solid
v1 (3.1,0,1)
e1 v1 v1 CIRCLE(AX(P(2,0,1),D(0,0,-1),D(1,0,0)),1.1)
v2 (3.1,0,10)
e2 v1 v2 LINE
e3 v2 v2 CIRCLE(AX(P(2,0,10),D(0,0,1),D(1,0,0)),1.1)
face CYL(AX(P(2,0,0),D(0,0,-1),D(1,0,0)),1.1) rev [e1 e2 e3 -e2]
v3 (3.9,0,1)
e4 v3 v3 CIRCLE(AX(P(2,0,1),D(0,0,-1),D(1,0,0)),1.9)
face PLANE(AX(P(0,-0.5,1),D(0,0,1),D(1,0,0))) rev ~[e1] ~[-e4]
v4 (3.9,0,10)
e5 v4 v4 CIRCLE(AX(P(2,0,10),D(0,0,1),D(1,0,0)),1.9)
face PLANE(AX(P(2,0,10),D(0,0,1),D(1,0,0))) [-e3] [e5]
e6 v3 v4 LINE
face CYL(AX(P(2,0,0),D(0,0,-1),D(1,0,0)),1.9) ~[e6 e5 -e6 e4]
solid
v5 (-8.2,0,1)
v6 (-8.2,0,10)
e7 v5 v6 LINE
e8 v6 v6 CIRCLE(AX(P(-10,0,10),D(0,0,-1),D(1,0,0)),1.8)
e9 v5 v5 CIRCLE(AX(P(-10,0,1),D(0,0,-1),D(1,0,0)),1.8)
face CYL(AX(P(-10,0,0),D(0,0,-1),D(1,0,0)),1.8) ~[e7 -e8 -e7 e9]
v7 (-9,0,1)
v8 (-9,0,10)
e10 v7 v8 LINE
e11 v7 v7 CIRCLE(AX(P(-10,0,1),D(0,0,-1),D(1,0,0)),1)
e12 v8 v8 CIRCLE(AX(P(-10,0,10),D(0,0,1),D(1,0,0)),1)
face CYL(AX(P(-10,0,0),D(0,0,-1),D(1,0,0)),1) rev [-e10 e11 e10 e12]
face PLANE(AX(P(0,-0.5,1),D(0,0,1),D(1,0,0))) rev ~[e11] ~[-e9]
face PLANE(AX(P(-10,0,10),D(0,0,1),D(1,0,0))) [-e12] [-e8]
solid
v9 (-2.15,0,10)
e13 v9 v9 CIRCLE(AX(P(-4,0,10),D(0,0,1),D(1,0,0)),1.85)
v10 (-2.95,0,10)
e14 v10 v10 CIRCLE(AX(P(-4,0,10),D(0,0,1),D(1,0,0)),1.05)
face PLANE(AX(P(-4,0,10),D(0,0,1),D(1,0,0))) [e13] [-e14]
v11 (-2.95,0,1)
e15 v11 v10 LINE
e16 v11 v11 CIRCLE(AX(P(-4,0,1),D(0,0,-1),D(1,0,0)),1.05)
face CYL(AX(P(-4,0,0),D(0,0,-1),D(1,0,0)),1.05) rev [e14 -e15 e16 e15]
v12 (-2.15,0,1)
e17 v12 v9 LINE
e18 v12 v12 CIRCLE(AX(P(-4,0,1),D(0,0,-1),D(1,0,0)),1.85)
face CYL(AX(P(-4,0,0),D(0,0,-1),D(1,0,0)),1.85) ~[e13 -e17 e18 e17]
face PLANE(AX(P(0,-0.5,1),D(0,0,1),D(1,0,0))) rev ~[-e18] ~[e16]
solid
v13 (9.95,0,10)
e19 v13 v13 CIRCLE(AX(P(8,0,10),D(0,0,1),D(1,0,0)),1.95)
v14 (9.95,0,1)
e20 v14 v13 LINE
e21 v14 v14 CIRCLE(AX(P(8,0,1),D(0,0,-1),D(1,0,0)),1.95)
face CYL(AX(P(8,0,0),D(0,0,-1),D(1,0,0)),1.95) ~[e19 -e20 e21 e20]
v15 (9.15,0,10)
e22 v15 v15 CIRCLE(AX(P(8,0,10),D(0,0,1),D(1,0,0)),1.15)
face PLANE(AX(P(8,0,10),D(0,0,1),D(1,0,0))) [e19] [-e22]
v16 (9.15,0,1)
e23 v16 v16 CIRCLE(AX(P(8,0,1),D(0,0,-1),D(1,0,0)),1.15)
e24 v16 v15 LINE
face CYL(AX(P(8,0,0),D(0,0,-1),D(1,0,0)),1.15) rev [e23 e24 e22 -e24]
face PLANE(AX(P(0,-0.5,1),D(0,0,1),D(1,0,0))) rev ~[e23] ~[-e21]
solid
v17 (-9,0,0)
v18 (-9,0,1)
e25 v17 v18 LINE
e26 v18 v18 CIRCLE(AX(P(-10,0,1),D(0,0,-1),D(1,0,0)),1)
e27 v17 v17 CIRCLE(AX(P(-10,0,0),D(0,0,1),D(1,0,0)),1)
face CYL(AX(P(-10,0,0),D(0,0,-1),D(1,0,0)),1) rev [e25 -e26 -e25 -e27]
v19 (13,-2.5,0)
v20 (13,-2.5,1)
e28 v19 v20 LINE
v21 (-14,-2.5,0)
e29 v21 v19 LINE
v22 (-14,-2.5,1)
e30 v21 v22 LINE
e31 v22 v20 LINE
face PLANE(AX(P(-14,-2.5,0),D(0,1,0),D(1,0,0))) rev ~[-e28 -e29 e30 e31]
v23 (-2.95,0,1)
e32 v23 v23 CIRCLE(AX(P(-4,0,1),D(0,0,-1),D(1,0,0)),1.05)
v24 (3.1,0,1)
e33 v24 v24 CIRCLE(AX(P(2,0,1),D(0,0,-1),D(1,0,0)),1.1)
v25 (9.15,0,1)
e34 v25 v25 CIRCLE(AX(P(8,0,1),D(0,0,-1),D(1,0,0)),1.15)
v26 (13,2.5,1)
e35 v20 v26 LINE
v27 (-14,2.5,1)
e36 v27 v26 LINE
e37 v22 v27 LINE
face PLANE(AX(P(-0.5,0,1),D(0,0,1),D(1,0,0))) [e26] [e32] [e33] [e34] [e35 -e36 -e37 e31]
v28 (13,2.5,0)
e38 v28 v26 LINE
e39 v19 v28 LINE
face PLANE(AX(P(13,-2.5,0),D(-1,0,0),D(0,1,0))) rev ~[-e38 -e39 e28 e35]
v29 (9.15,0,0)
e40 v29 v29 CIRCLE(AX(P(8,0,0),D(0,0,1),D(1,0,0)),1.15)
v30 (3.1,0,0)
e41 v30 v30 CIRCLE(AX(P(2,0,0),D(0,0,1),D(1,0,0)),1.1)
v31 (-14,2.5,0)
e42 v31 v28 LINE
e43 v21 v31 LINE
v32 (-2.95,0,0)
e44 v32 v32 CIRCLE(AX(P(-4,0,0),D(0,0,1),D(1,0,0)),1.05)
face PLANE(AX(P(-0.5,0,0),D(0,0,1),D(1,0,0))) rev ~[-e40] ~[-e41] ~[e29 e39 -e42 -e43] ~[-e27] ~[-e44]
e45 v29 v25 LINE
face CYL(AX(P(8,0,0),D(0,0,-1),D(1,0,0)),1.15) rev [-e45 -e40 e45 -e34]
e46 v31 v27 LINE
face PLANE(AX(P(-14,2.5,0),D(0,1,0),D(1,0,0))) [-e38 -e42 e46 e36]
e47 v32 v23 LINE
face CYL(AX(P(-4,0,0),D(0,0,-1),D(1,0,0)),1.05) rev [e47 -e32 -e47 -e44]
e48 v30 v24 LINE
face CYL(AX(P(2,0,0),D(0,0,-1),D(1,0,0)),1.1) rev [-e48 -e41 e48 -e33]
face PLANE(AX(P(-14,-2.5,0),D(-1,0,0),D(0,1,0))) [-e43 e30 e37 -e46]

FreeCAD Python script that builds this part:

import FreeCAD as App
import Part
import Sketcher
from FreeCAD import Vector


def faces_at(feature, points):
    """Names of the faces that lie closest to the given points."""
    faces = feature.Shape.Faces
    near = lambda p: min(range(len(faces)), key=lambda i: faces[i].distToShape(Part.Vertex(*p))[0])
    return sorted({f"Face{near(p) + 1}" for p in points})


def add_polygon(sketch, points):
    """Adds a closed chain of lines whose ends are joined by coincident constraints."""
    first, n = sketch.GeometryCount, len(points)
    for a, b in zip(points, points[1:] + points[:1]):
        sketch.addGeometry(Part.LineSegment(App.Vector(*a, 0), App.Vector(*b, 0)), False)
    for i in range(n):
        sketch.addConstraint(Sketcher.Constraint("Coincident", first + i, 2, first + (i + 1) % n, 1))

doc = App.newDocument("Part")
params = doc.addObject("Spreadsheet::Sheet", "Params")
for row, (alias, value) in enumerate([
    ("sketch1_width", "30 mm"),
    ("sketch1_height", "5 mm"),
    ("pad1_length", "2 mm"),
    ("sketch2_diameter", "2 mm"),
    ("pad2_length", "10 mm"),
    ("thickness_wall", "0.8 mm"),
    ("sketch3_width", "30 mm"),
    ("sketch3_height", "5 mm"),
    ("pad3_length", "2 mm"),
    ("sketch4_diameter", "2.1 mm"),
    ("pad4_length", "10 mm"),
    ("thickness2_wall", "0.8 mm"),
    ("sketch5_width", "30 mm"),
    ("sketch5_height", "5 mm"),
    ("pad5_length", "2 mm"),
    ("sketch6_diameter", "2.2 mm"),
    ("pad6_length", "10 mm"),
    ("thickness3_wall", "0.8 mm"),
    ("sketch7_width", "30 mm"),
    ("sketch7_height", "5 mm"),
    ("pad7_length", "2 mm"),
    ("sketch8_diameter", "2.3 mm"),
    ("pad8_length", "10 mm"),
    ("thickness4_wall", "0.8 mm"),
    ("sketch9_diameter", "2.2 mm"),
    ("pad9_length", "10 mm"),
    ("sketch10_diameter", "2.3 mm"),
    ("pad10_length", "10 mm"),
    ("sketch11_diameter", "2.1 mm"),
    ("pad11_length", "10 mm"),
    ("sketch12_diameter", "2 mm"),
    ("pad12_length", "10 mm"),
    ("sketch13_width", "27 mm"),
    ("sketch13_height", "5 mm"),
    ("pad13_length", "1 mm"),
], start=1):
    params.set(f"A{row}", alias)
    params.set(f"B{row}", "=" + value)
    params.setAlias(f"B{row}", alias)

body = doc.addObject("PartDesign::Body", "Body")

# Sketch on XY plane
sketch1 = body.newObject("Sketcher::SketchObject", "Sketch")
sketch1.AttachmentSupport = (doc.getObject("XY_Plane"), [""])
sketch1.MapMode = "FlatFace"
sketch1.AttachmentOffset = App.Placement(Vector(0, 0, -1), App.Rotation())
add_polygon(sketch1, [(-15, 2), (-15, -3), (15, -3), (15, 2)])  # lines 0-3
sketch1.addConstraint(Sketcher.Constraint("Vertical", 0))
sketch1.addConstraint(Sketcher.Constraint("Horizontal", 1))
sketch1.addConstraint(Sketcher.Constraint("Vertical", 2))
sketch1.addConstraint(Sketcher.Constraint("Horizontal", 3))
sketch1.addConstraint(Sketcher.Constraint("DistanceX", 1, 1, 1, 2, 30.0))
sketch1.addConstraint(Sketcher.Constraint("DistanceY", 0, 2, 0, 1, 5.0))
sketch1.addConstraint(Sketcher.Constraint("DistanceX", 0, 2, -1, 1, 15.0))
sketch1.addConstraint(Sketcher.Constraint("DistanceY", 0, 2, -1, 1, 3.0))
sketch1.setExpression("Constraints[8]", "Params.sketch1_width")
sketch1.setExpression("Constraints[9]", "Params.sketch1_height")
pad1 = body.newObject("PartDesign::Pad", "Pad")
pad1.Profile = sketch1
pad1.setExpression("Length", "Params.pad1_length")
body2 = doc.addObject("PartDesign::Body", "Body001")

# Sketch on XY plane
sketch2 = body2.newObject("Sketcher::SketchObject", "Sketch001")
sketch2.AttachmentSupport = (doc.getObject("XY_Plane001"), [""])
sketch2.MapMode = "FlatFace"
sketch2.addGeometry(Part.Circle(Vector(-10, 0, 0), Vector(0, 0, 1), 1), False)
sketch2.addConstraint(Sketcher.Constraint("PointOnObject", 0, 3, -1))
sketch2.addConstraint(Sketcher.Constraint("Diameter", 0, 2.0))
sketch2.addConstraint(Sketcher.Constraint("DistanceX", 0, 3, -1, 1, 10.0))
sketch2.setExpression("Constraints[1]", "Params.sketch2_diameter")
pad2 = body2.newObject("PartDesign::Pad", "Pad001")
pad2.Profile = sketch2
pad2.setExpression("Length", "Params.pad2_length")
doc.recompute()

thickness = body2.newObject("PartDesign::Thickness", "Thickness")
thickness.Base = (pad2, faces_at(pad2, [(-10, 0, 10)]))
thickness.setExpression("Value", "Params.thickness_wall")
thickness.Reversed = False
thickness.Join = "Intersection"
doc.recompute()

boolean = body2.newObject("PartDesign::Boolean", "Boolean")
boolean.Type = "Cut"
boolean.addObjects([body])
body3 = doc.addObject("PartDesign::Body", "Body002")

# Sketch on XY plane
sketch3 = body3.newObject("Sketcher::SketchObject", "Sketch002")
sketch3.AttachmentSupport = (doc.getObject("XY_Plane002"), [""])
sketch3.MapMode = "FlatFace"
sketch3.AttachmentOffset = App.Placement(Vector(0, 0, -1), App.Rotation())
add_polygon(sketch3, [(-15, 2), (-15, -3), (15, -3), (15, 2)])  # lines 0-3
sketch3.addConstraint(Sketcher.Constraint("Vertical", 0))
sketch3.addConstraint(Sketcher.Constraint("Horizontal", 1))
sketch3.addConstraint(Sketcher.Constraint("Vertical", 2))
sketch3.addConstraint(Sketcher.Constraint("Horizontal", 3))
sketch3.addConstraint(Sketcher.Constraint("DistanceX", 1, 1, 1, 2, 30.0))
sketch3.addConstraint(Sketcher.Constraint("DistanceY", 0, 2, 0, 1, 5.0))
sketch3.addConstraint(Sketcher.Constraint("DistanceX", 0, 2, -1, 1, 15.0))
sketch3.addConstraint(Sketcher.Constraint("DistanceY", 0, 2, -1, 1, 3.0))
sketch3.setExpression("Constraints[8]", "Params.sketch3_width")
sketch3.setExpression("Constraints[9]", "Params.sketch3_height")
pad3 = body3.newObject("PartDesign::Pad", "Pad002")
pad3.Profile = sketch3
pad3.setExpression("Length", "Params.pad3_length")
body4 = doc.addObject("PartDesign::Body", "Body003")

# Sketch on XY plane
sketch4 = body4.newObject("Sketcher::SketchObject", "Sketch003")
sketch4.AttachmentSupport = (doc.getObject("XY_Plane003"), [""])
sketch4.MapMode = "FlatFace"
sketch4.addGeometry(Part.Circle(Vector(-4, 0, 0), Vector(0, 0, 1), 1.1), False)
sketch4.addConstraint(Sketcher.Constraint("PointOnObject", 0, 3, -1))
sketch4.addConstraint(Sketcher.Constraint("Diameter", 0, 2.1))
sketch4.addConstraint(Sketcher.Constraint("DistanceX", 0, 3, -1, 1, 4.0))
sketch4.setExpression("Constraints[1]", "Params.sketch4_diameter")
pad4 = body4.newObject("PartDesign::Pad", "Pad003")
pad4.Profile = sketch4
pad4.setExpression("Length", "Params.pad4_length")
doc.recompute()

thickness2 = body4.newObject("PartDesign::Thickness", "Thickness001")
thickness2.Base = (pad4, faces_at(pad4, [(-4, 0, 10)]))
thickness2.setExpression("Value", "Params.thickness2_wall")
thickness2.Reversed = False
thickness2.Join = "Arc"
doc.recompute()

boolean2 = body4.newObject("PartDesign::Boolean", "Boolean001")
boolean2.Type = "Cut"
boolean2.addObjects([body3])
body5 = doc.addObject("PartDesign::Body", "Body004")

# Sketch on XY plane
sketch5 = body5.newObject("Sketcher::SketchObject", "Sketch004")
sketch5.AttachmentSupport = (doc.getObject("XY_Plane004"), [""])
sketch5.MapMode = "FlatFace"
sketch5.AttachmentOffset = App.Placement(Vector(0, 0, -1), App.Rotation())
add_polygon(sketch5, [(-15, 2), (-15, -3), (15, -3), (15, 2)])  # lines 0-3
sketch5.addConstraint(Sketcher.Constraint("Vertical", 0))
sketch5.addConstraint(Sketcher.Constraint("Horizontal", 1))
sketch5.addConstraint(Sketcher.Constraint("Vertical", 2))
sketch5.addConstraint(Sketcher.Constraint("Horizontal", 3))
sketch5.addConstraint(Sketcher.Constraint("DistanceX", 1, 1, 1, 2, 30.0))
sketch5.addConstraint(Sketcher.Constraint("DistanceY", 0, 2, 0, 1, 5.0))
sketch5.addConstraint(Sketcher.Constraint("DistanceX", 0, 2, -1, 1, 15.0))
sketch5.addConstraint(Sketcher.Constraint("DistanceY", 0, 2, -1, 1, 3.0))
sketch5.setExpression("Constraints[8]", "Params.sketch5_width")
sketch5.setExpression("Constraints[9]", "Params.sketch5_height")
pad5 = body5.newObject("PartDesign::Pad", "Pad004")
pad5.Profile = sketch5
pad5.setExpression("Length", "Params.pad5_length")
body6 = doc.addObject("PartDesign::Body", "Body005")

# Sketch on XY plane
sketch6 = body6.newObject("Sketcher::SketchObject", "Sketch005")
sketch6.AttachmentSupport = (doc.getObject("XY_Plane005"), [""])
sketch6.MapMode = "FlatFace"
sketch6.addGeometry(Part.Circle(Vector(2, 0, 0), Vector(0, 0, 1), 1.1), False)
sketch6.addConstraint(Sketcher.Constraint("PointOnObject", 0, 3, -1))
sketch6.addConstraint(Sketcher.Constraint("Diameter", 0, 2.2))
sketch6.addConstraint(Sketcher.Constraint("DistanceX", -1, 1, 0, 3, 2.0))
sketch6.setExpression("Constraints[1]", "Params.sketch6_diameter")
pad6 = body6.newObject("PartDesign::Pad", "Pad005")
pad6.Profile = sketch6
pad6.setExpression("Length", "Params.pad6_length")
doc.recompute()

thickness3 = body6.newObject("PartDesign::Thickness", "Thickness002")
thickness3.Base = (pad6, faces_at(pad6, [(2, 0, 10)]))
thickness3.setExpression("Value", "Params.thickness3_wall")
thickness3.Reversed = False
thickness3.Join = "Arc"
doc.recompute()

boolean3 = body6.newObject("PartDesign::Boolean", "Boolean002")
boolean3.Type = "Cut"
boolean3.addObjects([body5])
body7 = doc.addObject("PartDesign::Body", "Body006")

# Sketch on XY plane
sketch7 = body7.newObject("Sketcher::SketchObject", "Sketch006")
sketch7.AttachmentSupport = (doc.getObject("XY_Plane006"), [""])
sketch7.MapMode = "FlatFace"
sketch7.AttachmentOffset = App.Placement(Vector(0, 0, -1), App.Rotation())
add_polygon(sketch7, [(-15, 2), (-15, -3), (15, -3), (15, 2)])  # lines 0-3
sketch7.addConstraint(Sketcher.Constraint("Vertical", 0))
sketch7.addConstraint(Sketcher.Constraint("Horizontal", 1))
sketch7.addConstraint(Sketcher.Constraint("Vertical", 2))
sketch7.addConstraint(Sketcher.Constraint("Horizontal", 3))
sketch7.addConstraint(Sketcher.Constraint("DistanceX", 1, 1, 1, 2, 30.0))
sketch7.addConstraint(Sketcher.Constraint("DistanceY", 0, 2, 0, 1, 5.0))
sketch7.addConstraint(Sketcher.Constraint("DistanceX", 0, 2, -1, 1, 15.0))
sketch7.addConstraint(Sketcher.Constraint("DistanceY", 0, 2, -1, 1, 3.0))
sketch7.setExpression("Constraints[8]", "Params.sketch7_width")
sketch7.setExpression("Constraints[9]", "Params.sketch7_height")
pad7 = body7.newObject("PartDesign::Pad", "Pad006")
pad7.Profile = sketch7
pad7.setExpression("Length", "Params.pad7_length")
body8 = doc.addObject("PartDesign::Body", "Body007")

# Sketch on XY plane
sketch8 = body8.newObject("Sketcher::SketchObject", "Sketch007")
sketch8.AttachmentSupport = (doc.getObject("XY_Plane007"), [""])
sketch8.MapMode = "FlatFace"
sketch8.addGeometry(Part.Circle(Vector(8, 0, 0), Vector(0, 0, 1), 1.1), False)
sketch8.addConstraint(Sketcher.Constraint("PointOnObject", 0, 3, -1))
sketch8.addConstraint(Sketcher.Constraint("Diameter", 0, 2.3))
sketch8.addConstraint(Sketcher.Constraint("DistanceX", -1, 1, 0, 3, 8.0))
sketch8.setExpression("Constraints[1]", "Params.sketch8_diameter")
pad8 = body8.newObject("PartDesign::Pad", "Pad007")
pad8.Profile = sketch8
pad8.setExpression("Length", "Params.pad8_length")
doc.recompute()

thickness4 = body8.newObject("PartDesign::Thickness", "Thickness003")
thickness4.Base = (pad8, faces_at(pad8, [(8, 0, 10)]))
thickness4.setExpression("Value", "Params.thickness4_wall")
thickness4.Reversed = False
thickness4.Join = "Arc"
doc.recompute()

boolean4 = body8.newObject("PartDesign::Boolean", "Boolean003")
boolean4.Type = "Cut"
boolean4.addObjects([body7])
body9 = doc.addObject("PartDesign::Body", "Body008")

# Sketch on XY plane
sketch9 = body9.newObject("Sketcher::SketchObject", "Sketch008")
sketch9.AttachmentSupport = (doc.getObject("XY_Plane008"), [""])
sketch9.MapMode = "FlatFace"
sketch9.addGeometry(Part.Circle(Vector(2, 0, 0), Vector(0, 0, 1), 1.1), False)
sketch9.addConstraint(Sketcher.Constraint("PointOnObject", 0, 3, -1))
sketch9.addConstraint(Sketcher.Constraint("Diameter", 0, 2.2))
sketch9.addConstraint(Sketcher.Constraint("DistanceX", -1, 1, 0, 3, 2.0))
sketch9.setExpression("Constraints[1]", "Params.sketch9_diameter")
pad9 = body9.newObject("PartDesign::Pad", "Pad008")
pad9.Profile = sketch9
pad9.setExpression("Length", "Params.pad9_length")
body10 = doc.addObject("PartDesign::Body", "Body009")

# Sketch on XY plane
sketch10 = body10.newObject("Sketcher::SketchObject", "Sketch009")
sketch10.AttachmentSupport = (doc.getObject("XY_Plane009"), [""])
sketch10.MapMode = "FlatFace"
sketch10.addGeometry(Part.Circle(Vector(8, 0, 0), Vector(0, 0, 1), 1.1), False)
sketch10.addConstraint(Sketcher.Constraint("PointOnObject", 0, 3, -1))
sketch10.addConstraint(Sketcher.Constraint("Diameter", 0, 2.3))
sketch10.addConstraint(Sketcher.Constraint("DistanceX", -1, 1, 0, 3, 8.0))
sketch10.setExpression("Constraints[1]", "Params.sketch10_diameter")
pad10 = body10.newObject("PartDesign::Pad", "Pad009")
pad10.Profile = sketch10
pad10.setExpression("Length", "Params.pad10_length")
body11 = doc.addObject("PartDesign::Body", "Body010")

# Sketch on XY plane
sketch11 = body11.newObject("Sketcher::SketchObject", "Sketch010")
sketch11.AttachmentSupport = (doc.getObject("XY_Plane010"), [""])
sketch11.MapMode = "FlatFace"
sketch11.addGeometry(Part.Circle(Vector(-4, 0, 0), Vector(0, 0, 1), 1.1), False)
sketch11.addConstraint(Sketcher.Constraint("PointOnObject", 0, 3, -1))
sketch11.addConstraint(Sketcher.Constraint("Diameter", 0, 2.1))
sketch11.addConstraint(Sketcher.Constraint("DistanceX", 0, 3, -1, 1, 4.0))
sketch11.setExpression("Constraints[1]", "Params.sketch11_diameter")
pad11 = body11.newObject("PartDesign::Pad", "Pad010")
pad11.Profile = sketch11
pad11.setExpression("Length", "Params.pad11_length")
body12 = doc.addObject("PartDesign::Body", "Body011")

# Sketch on XY plane
sketch12 = body12.newObject("Sketcher::SketchObject", "Sketch011")
sketch12.AttachmentSupport = (doc.getObject("XY_Plane011"), [""])
sketch12.MapMode = "FlatFace"
sketch12.addGeometry(Part.Circle(Vector(-10, 0, 0), Vector(0, 0, 1), 1), False)
sketch12.addConstraint(Sketcher.Constraint("PointOnObject", 0, 3, -1))
sketch12.addConstraint(Sketcher.Constraint("Diameter", 0, 2.0))
sketch12.addConstraint(Sketcher.Constraint("DistanceX", 0, 3, -1, 1, 10.0))
sketch12.setExpression("Constraints[1]", "Params.sketch12_diameter")
pad12 = body12.newObject("PartDesign::Pad", "Pad011")
pad12.Profile = sketch12
pad12.setExpression("Length", "Params.pad12_length")
body13 = doc.addObject("PartDesign::Body", "Body012")

# Sketch on XY plane
sketch13 = body13.newObject("Sketcher::SketchObject", "Sketch012")
sketch13.AttachmentSupport = (doc.getObject("XY_Plane012"), [""])
sketch13.MapMode = "FlatFace"
add_polygon(sketch13, [(-14, 2), (-14, -2), (13, -2), (13, 2)])  # lines 0-3
sketch13.addConstraint(Sketcher.Constraint("Vertical", 0))
sketch13.addConstraint(Sketcher.Constraint("Horizontal", 1))
sketch13.addConstraint(Sketcher.Constraint("Vertical", 2))
sketch13.addConstraint(Sketcher.Constraint("Horizontal", 3))
sketch13.addConstraint(Sketcher.Constraint("DistanceX", 1, 1, 1, 2, 27.0))
sketch13.addConstraint(Sketcher.Constraint("DistanceY", 0, 2, 0, 1, 5.0))
sketch13.addConstraint(Sketcher.Constraint("DistanceX", 0, 2, -1, 1, 14.0))
sketch13.addConstraint(Sketcher.Constraint("DistanceY", 0, 2, -1, 1, 2.5))
sketch13.setExpression("Constraints[8]", "Params.sketch13_width")
sketch13.setExpression("Constraints[9]", "Params.sketch13_height")
pad13 = body13.newObject("PartDesign::Pad", "Pad012")
pad13.Profile = sketch13
pad13.setExpression("Length", "Params.pad13_length")
doc.recompute()

boolean5 = body13.newObject("PartDesign::Boolean", "Boolean004")
boolean5.Type = "Cut"
boolean5.addObjects([body12])
doc.recompute()

boolean6 = body13.newObject("PartDesign::Boolean", "Boolean005")
boolean6.Type = "Cut"
boolean6.addObjects([body11])
doc.recompute()

boolean7 = body13.newObject("PartDesign::Boolean", "Boolean006")
boolean7.Type = "Cut"
boolean7.addObjects([body10])
doc.recompute()

boolean8 = body13.newObject("PartDesign::Boolean", "Boolean007")
boolean8.Type = "Cut"
boolean8.addObjects([body9])

doc.recompute()
